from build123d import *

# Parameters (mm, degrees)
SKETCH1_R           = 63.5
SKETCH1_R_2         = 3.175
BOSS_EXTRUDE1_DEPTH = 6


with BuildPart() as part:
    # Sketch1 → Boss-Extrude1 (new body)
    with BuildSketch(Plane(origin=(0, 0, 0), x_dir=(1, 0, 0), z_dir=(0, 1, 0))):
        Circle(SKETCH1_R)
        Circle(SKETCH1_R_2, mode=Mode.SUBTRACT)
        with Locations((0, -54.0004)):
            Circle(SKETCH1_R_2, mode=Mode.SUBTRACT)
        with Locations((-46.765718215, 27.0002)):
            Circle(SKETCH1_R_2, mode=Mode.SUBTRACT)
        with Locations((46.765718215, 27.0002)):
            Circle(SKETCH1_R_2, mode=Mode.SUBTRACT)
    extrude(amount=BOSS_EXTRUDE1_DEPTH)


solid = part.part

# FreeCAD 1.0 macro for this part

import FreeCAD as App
import Part
import Sketcher
Q = App.Units.Quantity

doc = App.newDocument("Part")
body = doc.addObject("PartDesign::Body", "Body")

sketch1 = body.newObject("Sketcher::SketchObject", "Sketch")
sketch1.AttachmentSupport = (doc.getObject("XZ_Plane"), [""])
sketch1.MapMode = "FlatFace"
sketch1.addGeometry([
    Part.Circle(App.Vector(0, 0, 0), App.Vector(0, 0, 1), 63.5),
    Part.Circle(App.Vector(0, 54, 0), App.Vector(0, 0, 1), 3.2),
    Part.Circle(App.Vector(-46.8, -27, 0), App.Vector(0, 0, 1), 3.2),
    Part.Circle(App.Vector(0, 0, 0), App.Vector(0, 0, 1), 3.2),
    Part.Circle(App.Vector(46.8, -27, 0), App.Vector(0, 0, 1), 3.2),
], False)
sketch1.addConstraint([
    Sketcher.Constraint("Coincident", 0, 3, -1, 1),
    Sketcher.Constraint("Coincident", 3, 3, -1, 1),
    Sketcher.Constraint("Equal", 1, 2),
    Sketcher.Constraint("Equal", 2, 3),
    Sketcher.Constraint("Equal", 3, 4),
    Sketcher.Constraint("Symmetric", 2, 3, 4, 3, -2),
    Sketcher.Constraint("PointOnObject", 1, 3, -2),
    Sketcher.Constraint("Diameter", 0, Q("5 in")),
    Sketcher.Constraint("Diameter", 1, Q("0.25 in")),
    Sketcher.Constraint("DistanceY", -1, 1, 1, 3, Q("2.126 in")),
    Sketcher.Constraint("DistanceY", 2, 3, -1, 1, Q("1.063 in")),
    Sketcher.Constraint("DistanceX", 2, 3, -1, 1, Q("46.765718 mm")),
])
pad1 = body.newObject("PartDesign::Pad", "Pad")
pad1.Profile = sketch1
pad1.Length = 6
pad1.Reversed = True

doc.recompute()
